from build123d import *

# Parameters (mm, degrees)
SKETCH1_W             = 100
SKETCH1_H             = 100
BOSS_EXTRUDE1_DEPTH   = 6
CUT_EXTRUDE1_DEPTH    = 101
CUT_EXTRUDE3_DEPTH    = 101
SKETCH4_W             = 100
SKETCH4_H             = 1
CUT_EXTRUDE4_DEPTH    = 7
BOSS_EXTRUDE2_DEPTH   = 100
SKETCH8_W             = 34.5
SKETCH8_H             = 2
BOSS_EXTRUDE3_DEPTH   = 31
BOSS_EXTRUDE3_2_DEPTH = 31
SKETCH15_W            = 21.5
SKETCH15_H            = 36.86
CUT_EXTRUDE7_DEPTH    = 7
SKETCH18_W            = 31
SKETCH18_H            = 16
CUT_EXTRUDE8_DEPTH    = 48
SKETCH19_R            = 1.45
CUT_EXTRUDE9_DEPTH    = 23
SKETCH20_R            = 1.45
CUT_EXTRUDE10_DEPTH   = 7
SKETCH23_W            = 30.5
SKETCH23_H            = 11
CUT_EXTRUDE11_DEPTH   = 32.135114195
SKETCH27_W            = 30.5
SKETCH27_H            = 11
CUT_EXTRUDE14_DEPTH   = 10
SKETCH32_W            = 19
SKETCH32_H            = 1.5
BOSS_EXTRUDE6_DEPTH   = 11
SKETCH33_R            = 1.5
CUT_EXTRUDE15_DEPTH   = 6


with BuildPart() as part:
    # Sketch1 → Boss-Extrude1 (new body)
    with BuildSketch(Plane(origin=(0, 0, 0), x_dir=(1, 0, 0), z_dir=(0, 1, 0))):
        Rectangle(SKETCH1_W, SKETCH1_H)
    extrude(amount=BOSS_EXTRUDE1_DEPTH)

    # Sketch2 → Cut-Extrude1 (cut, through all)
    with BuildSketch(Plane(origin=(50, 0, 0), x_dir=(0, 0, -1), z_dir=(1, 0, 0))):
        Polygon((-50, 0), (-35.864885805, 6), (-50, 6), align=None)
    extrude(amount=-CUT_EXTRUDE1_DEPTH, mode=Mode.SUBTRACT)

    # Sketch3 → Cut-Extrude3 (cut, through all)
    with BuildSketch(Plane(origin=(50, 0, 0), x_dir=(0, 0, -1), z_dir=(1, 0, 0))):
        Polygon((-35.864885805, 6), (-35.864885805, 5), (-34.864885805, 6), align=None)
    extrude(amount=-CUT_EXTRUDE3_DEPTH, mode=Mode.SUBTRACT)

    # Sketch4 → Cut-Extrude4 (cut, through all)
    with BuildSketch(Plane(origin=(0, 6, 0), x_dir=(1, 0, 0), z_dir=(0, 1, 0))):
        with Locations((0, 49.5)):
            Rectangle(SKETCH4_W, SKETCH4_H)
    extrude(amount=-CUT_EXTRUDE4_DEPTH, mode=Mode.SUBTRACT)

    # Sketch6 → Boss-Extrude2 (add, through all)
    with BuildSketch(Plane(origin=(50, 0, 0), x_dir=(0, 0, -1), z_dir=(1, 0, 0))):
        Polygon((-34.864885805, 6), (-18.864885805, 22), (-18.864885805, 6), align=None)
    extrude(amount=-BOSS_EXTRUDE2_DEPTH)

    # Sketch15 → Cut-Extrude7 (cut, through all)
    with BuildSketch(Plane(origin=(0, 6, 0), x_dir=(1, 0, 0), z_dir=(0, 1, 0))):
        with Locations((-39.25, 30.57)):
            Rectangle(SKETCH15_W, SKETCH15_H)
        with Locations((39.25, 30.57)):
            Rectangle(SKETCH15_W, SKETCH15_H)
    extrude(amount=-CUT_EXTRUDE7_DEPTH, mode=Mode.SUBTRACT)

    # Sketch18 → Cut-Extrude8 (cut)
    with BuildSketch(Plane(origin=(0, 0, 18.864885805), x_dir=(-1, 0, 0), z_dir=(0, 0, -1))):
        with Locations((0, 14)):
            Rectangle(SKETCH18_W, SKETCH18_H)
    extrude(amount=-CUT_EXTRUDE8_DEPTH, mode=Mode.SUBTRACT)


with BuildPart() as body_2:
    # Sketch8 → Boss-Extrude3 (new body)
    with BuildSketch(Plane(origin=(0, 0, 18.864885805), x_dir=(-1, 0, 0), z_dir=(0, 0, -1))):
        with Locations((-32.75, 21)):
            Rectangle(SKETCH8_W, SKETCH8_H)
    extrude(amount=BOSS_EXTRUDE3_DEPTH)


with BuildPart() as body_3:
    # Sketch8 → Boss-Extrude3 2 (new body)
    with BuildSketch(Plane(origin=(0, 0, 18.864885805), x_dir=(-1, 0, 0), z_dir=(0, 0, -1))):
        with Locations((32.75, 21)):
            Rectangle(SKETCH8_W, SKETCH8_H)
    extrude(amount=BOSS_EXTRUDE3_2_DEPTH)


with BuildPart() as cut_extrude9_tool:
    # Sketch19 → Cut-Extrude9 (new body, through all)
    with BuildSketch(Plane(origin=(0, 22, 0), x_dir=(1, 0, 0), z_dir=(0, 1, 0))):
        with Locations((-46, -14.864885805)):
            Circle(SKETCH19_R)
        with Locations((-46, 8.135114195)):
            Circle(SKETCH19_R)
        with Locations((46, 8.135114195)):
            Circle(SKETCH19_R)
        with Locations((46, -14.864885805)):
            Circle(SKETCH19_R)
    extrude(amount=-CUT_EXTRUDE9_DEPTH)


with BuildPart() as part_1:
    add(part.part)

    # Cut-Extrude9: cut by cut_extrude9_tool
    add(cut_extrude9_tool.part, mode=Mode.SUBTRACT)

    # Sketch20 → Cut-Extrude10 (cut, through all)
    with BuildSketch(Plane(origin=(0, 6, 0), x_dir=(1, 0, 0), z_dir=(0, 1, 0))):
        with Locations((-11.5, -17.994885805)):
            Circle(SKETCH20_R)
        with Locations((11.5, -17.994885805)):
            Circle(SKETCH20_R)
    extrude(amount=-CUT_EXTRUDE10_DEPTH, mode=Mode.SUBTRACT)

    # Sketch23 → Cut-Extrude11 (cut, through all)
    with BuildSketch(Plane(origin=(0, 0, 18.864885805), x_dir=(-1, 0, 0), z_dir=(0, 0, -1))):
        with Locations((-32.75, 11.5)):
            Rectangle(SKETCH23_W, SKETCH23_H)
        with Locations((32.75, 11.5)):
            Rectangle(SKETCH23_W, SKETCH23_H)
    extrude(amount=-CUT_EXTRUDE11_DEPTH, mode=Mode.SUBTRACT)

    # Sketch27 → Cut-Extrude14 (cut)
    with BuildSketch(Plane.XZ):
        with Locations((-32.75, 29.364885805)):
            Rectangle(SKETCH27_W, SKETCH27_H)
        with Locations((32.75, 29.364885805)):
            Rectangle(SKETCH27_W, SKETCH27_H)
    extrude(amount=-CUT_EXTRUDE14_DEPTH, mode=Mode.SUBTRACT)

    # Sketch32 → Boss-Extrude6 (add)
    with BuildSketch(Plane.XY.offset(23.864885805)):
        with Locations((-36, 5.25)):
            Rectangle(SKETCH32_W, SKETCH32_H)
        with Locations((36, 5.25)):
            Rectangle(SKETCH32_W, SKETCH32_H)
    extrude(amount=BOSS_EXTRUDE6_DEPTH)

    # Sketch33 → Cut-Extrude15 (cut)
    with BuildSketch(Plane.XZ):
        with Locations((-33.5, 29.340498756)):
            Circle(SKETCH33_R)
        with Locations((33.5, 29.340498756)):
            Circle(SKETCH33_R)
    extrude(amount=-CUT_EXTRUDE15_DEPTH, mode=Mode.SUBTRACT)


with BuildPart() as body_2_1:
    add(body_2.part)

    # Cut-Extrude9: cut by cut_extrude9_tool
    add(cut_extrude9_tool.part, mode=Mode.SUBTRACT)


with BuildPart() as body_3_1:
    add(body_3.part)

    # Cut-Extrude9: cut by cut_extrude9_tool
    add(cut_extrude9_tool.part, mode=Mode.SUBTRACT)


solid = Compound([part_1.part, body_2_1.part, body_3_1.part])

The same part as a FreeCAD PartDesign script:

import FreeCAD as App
import Part
import Sketcher
from FreeCAD import Vector
Q = App.Units.Quantity


def add_polygon(sketch, points):
    """Adds a closed chain of lines whose ends are joined by coincident constraints."""
    first, n = sketch.GeometryCount, len(points)
    for a, b in zip(points, points[1:] + points[:1]):
        sketch.addGeometry(Part.LineSegment(App.Vector(*a, 0), App.Vector(*b, 0)), False)
    for i in range(n):
        sketch.addConstraint(Sketcher.Constraint("Coincident", first + i, 2, first + (i + 1) % n, 1))

doc = App.newDocument("Part")
params = doc.addObject("Spreadsheet::Sheet", "Params")
for row, (alias, value) in enumerate([
    ("sketch1_width", "100 mm"),
    ("pad1_length", "6 mm"),
    ("sketch2_width", "6 mm"),
    ("sketch3_width", "1 mm"),
    ("sketch4_width", "100 mm"),
    ("sketch4_height", "1 mm"),
    ("sketch5_width", "16 mm"),
    ("pad2_length", "100 mm"),
    ("sketch6_width", "21.5 mm"),
    ("sketch6_height", "36.86 mm"),
    ("sketch7_width", "31 mm"),
    ("sketch7_height", "16 mm"),
    ("pocket5_length", "48 mm"),
    ("sketch8_height", "2 mm"),
    ("sketch8_width", "34.5 mm"),
    ("pad3_length", "31 mm"),
    ("sketch9_height", "2 mm"),
    ("sketch9_width", "34.5 mm"),
    ("pad4_length", "31 mm"),
    ("sketch10_diameter", "2.9 mm"),
    ("pad5_length", "23 mm"),
    ("sketch11_diameter", "2.9 mm"),
    ("sketch12_height", "11 mm"),
    ("sketch12_width", "30.5 mm"),
    ("sketch13_height", "11 mm"),
    ("sketch13_width", "30.5 mm"),
    ("pocket8_length", "10 mm"),
    ("sketch14_width", "19 mm"),
    ("sketch14_height", "1.5 mm"),
    ("pad6_length", "11 mm"),
    ("sketch15_diameter", "3 mm"),
    ("pocket9_length", "6 mm"),
], start=1):
    params.set(f"A{row}", alias)
    params.set(f"B{row}", "=" + value)
    params.setAlias(f"B{row}", alias)

body = doc.addObject("PartDesign::Body", "Body")

# Sketch on XZ plane
sketch1 = body.newObject("Sketcher::SketchObject", "Sketch")
sketch1.AttachmentSupport = (doc.getObject("XZ_Plane"), [""])
sketch1.MapMode = "FlatFace"
add_polygon(sketch1, [(-50, -50), (-50, 50), (50, 50), (50, -50)])  # lines 0-3
sketch1.addConstraint([
    Sketcher.Constraint("Vertical", 0),
    Sketcher.Constraint("Horizontal", 1),
    Sketcher.Constraint("Vertical", 2),
    Sketcher.Constraint("Horizontal", 3),
    Sketcher.Constraint("Symmetric", 0, 2, 2, 2, -1, 1),
    Sketcher.Constraint("Equal", 3, 0),
    Sketcher.Constraint("DistanceX", 1, 1, 1, 2, Q("100 mm")),
])
sketch1.setExpression("Constraints[10]", "Params.sketch1_width")
pad1 = body.newObject("PartDesign::Pad", "Pad")
pad1.Profile = sketch1
pad1.setExpression("Length", "Params.pad1_length")
pad1.Reversed = True

# Sketch on YZ plane
sketch2 = body.newObject("Sketcher::SketchObject", "Sketch001")
sketch2.AttachmentSupport = (doc.getObject("YZ_Plane"), [""])
sketch2.MapMode = "FlatFace"
sketch2.AttachmentOffset = App.Placement(Vector(0, 0, 50), App.Rotation())
add_polygon(sketch2, [(0, 50), (6, 36), (6, 50)])  # lines 0-2
sketch2.addConstraint([
    Sketcher.Constraint("Vertical", 1),
    Sketcher.Constraint("Horizontal", 2),
    Sketcher.Constraint("PointOnObject", 2, 2, -2),
    Sketcher.Constraint("DistanceX", 2, 2, 2, 1, Q("6 mm")),
    Sketcher.Constraint("Angle", 0, Q("-67 deg")),
    Sketcher.Constraint("DistanceY", -1, 1, 1, 2, Q("50 mm")),
])
sketch2.setExpression("Constraints[6]", "Params.sketch2_width")
pocket1 = body.newObject("PartDesign::Pocket", "Pocket")
pocket1.Profile = sketch2
pocket1.Type = "ThroughAll"

# Sketch on YZ plane
sketch3 = body.newObject("Sketcher::SketchObject", "Sketch002")
sketch3.AttachmentSupport = (doc.getObject("YZ_Plane"), [""])
sketch3.MapMode = "FlatFace"
sketch3.AttachmentOffset = App.Placement(Vector(0, 0, 50), App.Rotation())
add_polygon(sketch3, [(6, 35.9), (5, 35.9), (6, 34.9)])  # lines 0-2
sketch3.addConstraint([
    Sketcher.Constraint("Horizontal", 0),
    Sketcher.Constraint("Vertical", 2),
    Sketcher.Constraint("Equal", 0, 2),
    Sketcher.Constraint("DistanceX", 0, 2, 0, 1, Q("1 mm")),
    Sketcher.Constraint("DistanceX", -1, 1, 0, 2, Q("5 mm")),
    Sketcher.Constraint("DistanceY", -1, 1, 0, 2, Q("35.864886 mm")),
])
sketch3.setExpression("Constraints[6]", "Params.sketch3_width")
pocket2 = body.newObject("PartDesign::Pocket", "Pocket001")
pocket2.Profile = sketch3
pocket2.Type = "ThroughAll"

# Sketch on XZ plane
sketch4 = body.newObject("Sketcher::SketchObject", "Sketch003")
sketch4.AttachmentSupport = (doc.getObject("XZ_Plane"), [""])
sketch4.MapMode = "FlatFace"
sketch4.AttachmentOffset = App.Placement(Vector(0, 0, -6), App.Rotation())
add_polygon(sketch4, [(-50, -50), (-50, -49), (50, -49), (50, -50)])  # lines 0-3
sketch4.addConstraint([
    Sketcher.Constraint("Vertical", 0),
    Sketcher.Constraint("Horizontal", 1),
    Sketcher.Constraint("Vertical", 2),
    Sketcher.Constraint("Horizontal", 3),
    Sketcher.Constraint("DistanceX", 1, 1, 1, 2, Q("100 mm")),
    Sketcher.Constraint("DistanceY", 0, 1, 0, 2, Q("1 mm")),
    Sketcher.Constraint("DistanceX", 0, 2, -1, 1, Q("50 mm")),
    Sketcher.Constraint("DistanceY", 0, 2, -1, 1, Q("49 mm")),
])
sketch4.setExpression("Constraints[8]", "Params.sketch4_width")
sketch4.setExpression("Constraints[9]", "Params.sketch4_height")
pocket3 = body.newObject("PartDesign::Pocket", "Pocket002")
pocket3.Profile = sketch4
pocket3.Type = "ThroughAll"
pocket3.Reversed = True

# Sketch on YZ plane
sketch5 = body.newObject("Sketcher::SketchObject", "Sketch004")
sketch5.AttachmentSupport = (doc.getObject("YZ_Plane"), [""])
sketch5.MapMode = "FlatFace"
sketch5.AttachmentOffset = App.Placement(Vector(0, 0, 50), App.Rotation())
add_polygon(sketch5, [(22, 19), (6, 35), (6, 19)])  # lines 0-2
sketch5.addConstraint([
    Sketcher.Constraint("Vertical", 1),
    Sketcher.Constraint("Horizontal", 2),
    Sketcher.Constraint("Equal", 2, 1),
    Sketcher.Constraint("DistanceX", 2, 1, 2, 2, Q("16 mm")),
    Sketcher.Constraint("DistanceX", -1, 1, 0, 2, Q("6 mm")),
    Sketcher.Constraint("DistanceY", -1, 1, 0, 2, Q("34.864886 mm")),
])
sketch5.setExpression("Constraints[6]", "Params.sketch5_width")
pad2 = body.newObject("PartDesign::Pad", "Pad001")
pad2.Profile = sketch5
pad2.setExpression("Length", "Params.pad2_length")
pad2.Reversed = True

# Sketch on XZ plane
sketch6 = body.newObject("Sketcher::SketchObject", "Sketch005")
sketch6.AttachmentSupport = (doc.getObject("XZ_Plane"), [""])
sketch6.MapMode = "FlatFace"
sketch6.AttachmentOffset = App.Placement(Vector(0, 0, -6), App.Rotation())
add_polygon(sketch6, [(-50, -49), (-50, -12), (-28, -12), (-28, -49)])  # lines 0-3
add_polygon(sketch6, [(28, -49), (28, -12), (50, -12), (50, -49)])  # lines 4-7
sketch6.addConstraint([
    Sketcher.Constraint("Vertical", 0),
    Sketcher.Constraint("Horizontal", 1),
    Sketcher.Constraint("Vertical", 2),
    Sketcher.Constraint("Horizontal", 3),
    Sketcher.Constraint("Vertical", 4),
    Sketcher.Constraint("Horizontal", 5),
    Sketcher.Constraint("Vertical", 6),
    Sketcher.Constraint("Horizontal", 7),
    Sketcher.Constraint("Symmetric", 1, 2, 4, 2, -2),
    Sketcher.Constraint("Symmetric", 3, 2, 6, 2, -2),
    Sketcher.Constraint("DistanceX", 1, 1, 1, 2, Q("21.5 mm")),
    Sketcher.Constraint("DistanceX", 0, 2, -1, 1, Q("50 mm")),
    Sketcher.Constraint("DistanceY", 2, 2, -1, 1, Q("49 mm")),
    Sketcher.Constraint("DistanceY", 0, 1, 0, 2, Q("36.86 mm")),
])
sketch6.setExpression("Constraints[18]", "Params.sketch6_width")
sketch6.setExpression("Constraints[21]", "Params.sketch6_height")
pocket4 = body.newObject("PartDesign::Pocket", "Pocket003")
pocket4.Profile = sketch6
pocket4.Type = "ThroughAll"
pocket4.Reversed = True

# Sketch on XY plane
sketch7 = body.newObject("Sketcher::SketchObject", "Sketch006")
sketch7.AttachmentSupport = (doc.getObject("XY_Plane"), [""])
sketch7.MapMode = "FlatFace"
sketch7.AttachmentOffset = App.Placement(Vector(0, 0, 18.864886), App.Rotation())
add_polygon(sketch7, [(16, 22), (16, 6), (-16, 6), (-16, 22)])  # lines 0-3
sketch7.addConstraint([
    Sketcher.Constraint("Vertical", 0),
    Sketcher.Constraint("Horizontal", 1),
    Sketcher.Constraint("Vertical", 2),
    Sketcher.Constraint("Horizontal", 3),
    Sketcher.Constraint("DistanceX", 1, 2, 1, 1, Q("31 mm")),
    Sketcher.Constraint("DistanceY", 0, 2, 0, 1, Q("16 mm")),
    Sketcher.Constraint("DistanceY", -1, 1, 0, 2, Q("6 mm")),
    Sketcher.Constraint("DistanceX", -1, 1, 0, 2, Q("15.5 mm")),
])
sketch7.setExpression("Constraints[8]", "Params.sketch7_width")
sketch7.setExpression("Constraints[9]", "Params.sketch7_height")
pocket5 = body.newObject("PartDesign::Pocket", "Pocket004")
pocket5.Profile = sketch7
pocket5.setExpression("Length", "Params.pocket5_length")
pocket5.Reversed = True
body2 = doc.addObject("PartDesign::Body", "Body001")

# Sketch on XY plane
sketch8 = body2.newObject("Sketcher::SketchObject", "Sketch007")
sketch8.AttachmentSupport = (doc.getObject("XY_Plane001"), [""])
sketch8.MapMode = "FlatFace"
sketch8.AttachmentOffset = App.Placement(Vector(0, 0, 18.864886), App.Rotation())
add_polygon(sketch8, [(50, 22), (50, 20), (15.5, 20), (15.5, 22)])  # lines 0-3
sketch8.addConstraint([
    Sketcher.Constraint("Vertical", 0),
    Sketcher.Constraint("Horizontal", 1),
    Sketcher.Constraint("Vertical", 2),
    Sketcher.Constraint("Horizontal", 3),
    Sketcher.Constraint("DistanceY", 0, 2, 0, 1, Q("2 mm")),
    Sketcher.Constraint("DistanceX", 1, 2, 1, 1, Q("34.5 mm")),
    Sketcher.Constraint("DistanceX", -1, 1, 0, 2, Q("50 mm")),
    Sketcher.Constraint("DistanceY", -1, 1, 0, 2, Q("20 mm")),
])
sketch8.setExpression("Constraints[8]", "Params.sketch8_height")
sketch8.setExpression("Constraints[9]", "Params.sketch8_width")
pad3 = body2.newObject("PartDesign::Pad", "Pad002")
pad3.Profile = sketch8
pad3.setExpression("Length", "Params.pad3_length")
pad3.Reversed = True
body3 = doc.addObject("PartDesign::Body", "Body002")

# Sketch on XY plane
sketch9 = body3.newObject("Sketcher::SketchObject", "Sketch008")
sketch9.AttachmentSupport = (doc.getObject("XY_Plane002"), [""])
sketch9.MapMode = "FlatFace"
sketch9.AttachmentOffset = App.Placement(Vector(0, 0, 18.864886), App.Rotation())
add_polygon(sketch9, [(-15.5, 22), (-15.5, 20), (-50, 20), (-50, 22)])  # lines 0-3
sketch9.addConstraint([
    Sketcher.Constraint("Vertical", 0),
    Sketcher.Constraint("Horizontal", 1),
    Sketcher.Constraint("Vertical", 2),
    Sketcher.Constraint("Horizontal", 3),
    Sketcher.Constraint("DistanceY", 0, 2, 0, 1, Q("2 mm")),
    Sketcher.Constraint("DistanceX", 1, 2, 1, 1, Q("34.5 mm")),
    Sketcher.Constraint("DistanceY", -1, 1, 0, 2, Q("20 mm")),
    Sketcher.Constraint("DistanceX", 1, 2, -1, 1, Q("50 mm")),
])
sketch9.setExpression("Constraints[8]", "Params.sketch9_height")
sketch9.setExpression("Constraints[9]", "Params.sketch9_width")
pad4 = body3.newObject("PartDesign::Pad", "Pad003")
pad4.Profile = sketch9
pad4.setExpression("Length", "Params.pad4_length")
pad4.Reversed = True
body4 = doc.addObject("PartDesign::Body", "Body003")
body4.AllowCompound = True

# Sketch on XZ plane
sketch10 = body4.newObject("Sketcher::SketchObject", "Sketch009")
sketch10.AttachmentSupport = (doc.getObject("XZ_Plane003"), [""])
sketch10.MapMode = "FlatFace"
sketch10.AttachmentOffset = App.Placement(Vector(0, 0, -22), App.Rotation())
sketch10.addGeometry([
    Part.Circle(Vector(-46, 14.9, 0), Vector(0, 0, 1), 1.4),
    Part.Circle(Vector(-46, -8.1, 0), Vector(0, 0, 1), 1.4),
    Part.Circle(Vector(46, -8.1, 0), Vector(0, 0, 1), 1.4),
    Part.Circle(Vector(46, 14.9, 0), Vector(0, 0, 1), 1.4),
], False)
sketch10.addConstraint([
    Sketcher.Constraint("Equal", 0, 1),
    Sketcher.Constraint("Equal", 1, 2),
    Sketcher.Constraint("Equal", 2, 3),
    Sketcher.Constraint("Symmetric", 1, 3, 2, 3, -2),
    Sketcher.Constraint("Symmetric", 0, 3, 3, 3, -2),
    Sketcher.Constraint("Vertical", 0, 3, 1, 3),
    Sketcher.Constraint("Diameter", 0, Q("2.9 mm")),
    Sketcher.Constraint("DistanceX", 0, 3, -1, 1, Q("46 mm")),
    Sketcher.Constraint("DistanceY", 1, 3, 0, 3, Q("23 mm")),
    Sketcher.Constraint("DistanceY", -1, 1, 0, 3, Q("14.864886 mm")),
])
sketch10.setExpression("Constraints[6]", "Params.sketch10_diameter")
pad5 = body4.newObject("PartDesign::Pad", "Pad004")
pad5.Profile = sketch10
pad5.setExpression("Length", "Params.pad5_length")
doc.recompute()

body5 = doc.addObject("PartDesign::Body", "Body004")
body5.BaseFeature = body4
boolean = body.newObject("PartDesign::Boolean", "Boolean")
boolean.Type = "Cut"
boolean.addObjects([body5])
doc.recompute()

# Sketch on XZ plane
sketch11 = body.newObject("Sketcher::SketchObject", "Sketch010")
sketch11.AttachmentSupport = (doc.getObject("XZ_Plane"), [""])
sketch11.MapMode = "FlatFace"
sketch11.AttachmentOffset = App.Placement(Vector(0, 0, -6), App.Rotation())
sketch11.addGeometry([
    Part.Circle(Vector(-11.5, 18, 0), Vector(0, 0, 1), 1.4),
    Part.Circle(Vector(11.5, 18, 0), Vector(0, 0, 1), 1.4),
], False)
sketch11.addConstraint([
    Sketcher.Constraint("Equal", 0, 1),
    Sketcher.Constraint("Symmetric", 0, 3, 1, 3, -2),
    Sketcher.Constraint("Diameter", 0, Q("2.9 mm")),
    Sketcher.Constraint("DistanceX", 0, 3, 1, 3, Q("23 mm")),
    Sketcher.Constraint("DistanceY", -1, 1, 0, 3, Q("17.994886 mm")),
])
sketch11.setExpression("Constraints[2]", "Params.sketch11_diameter")
pocket6 = body.newObject("PartDesign::Pocket", "Pocket005")
pocket6.Profile = sketch11
pocket6.Type = "ThroughAll"
pocket6.Reversed = True

# Sketch on XY plane
sketch12 = body.newObject("Sketcher::SketchObject", "Sketch011")
sketch12.AttachmentSupport = (doc.getObject("XY_Plane"), [""])
sketch12.MapMode = "FlatFace"
sketch12.AttachmentOffset = App.Placement(Vector(0, 0, 18.864886), App.Rotation())
add_polygon(sketch12, [(48, 17), (48, 6), (18, 6), (18, 17)])  # lines 0-3
add_polygon(sketch12, [(-18, 17), (-18, 6), (-48, 6), (-48, 17)])  # lines 4-7
sketch12.addConstraint([
    Sketcher.Constraint("Vertical", 0),
    Sketcher.Constraint("Horizontal", 1),
    Sketcher.Constraint("Vertical", 2),
    Sketcher.Constraint("Horizontal", 3),
    Sketcher.Constraint("Vertical", 4),
    Sketcher.Constraint("Horizontal", 5),
    Sketcher.Constraint("Vertical", 6),
    Sketcher.Constraint("Horizontal", 7),
    Sketcher.Constraint("Symmetric", 1, 2, 4, 2, -2),
    Sketcher.Constraint("Symmetric", 3, 2, 6, 2, -2),
    Sketcher.Constraint("DistanceY", 0, 2, 0, 1, Q("11 mm")),
    Sketcher.Constraint("DistanceX", 1, 2, 1, 1, Q("30.5 mm")),
    Sketcher.Constraint("DistanceX", -1, 1, 0, 2, Q("48 mm")),
    Sketcher.Constraint("DistanceY", -1, 1, 0, 2, Q("6 mm")),
])
sketch12.setExpression("Constraints[18]", "Params.sketch12_height")
sketch12.setExpression("Constraints[19]", "Params.sketch12_width")
pocket7 = body.newObject("PartDesign::Pocket", "Pocket006")
pocket7.Profile = sketch12
pocket7.Type = "ThroughAll"
pocket7.Reversed = True

# Sketch on XZ plane
sketch13 = body.newObject("Sketcher::SketchObject", "Sketch012")
sketch13.AttachmentSupport = (doc.getObject("XZ_Plane"), [""])
sketch13.MapMode = "FlatFace"
add_polygon(sketch13, [(-48, 35), (-48, 24), (-18, 24), (-18, 35)])  # lines 0-3
add_polygon(sketch13, [(18, 35), (18, 24), (48, 24), (48, 35)])  # lines 4-7
sketch13.addConstraint([
    Sketcher.Constraint("Vertical", 0),
    Sketcher.Constraint("Horizontal", 1),
    Sketcher.Constraint("Vertical", 2),
    Sketcher.Constraint("Horizontal", 3),
    Sketcher.Constraint("Vertical", 4),
    Sketcher.Constraint("Horizontal", 5),
    Sketcher.Constraint("Vertical", 6),
    Sketcher.Constraint("Horizontal", 7),
    Sketcher.Constraint("Symmetric", 1, 2, 4, 2, -2),
    Sketcher.Constraint("Symmetric", 3, 2, 6, 2, -2),
    Sketcher.Constraint("DistanceY", 0, 2, 0, 1, Q("11 mm")),
    Sketcher.Constraint("DistanceX", 1, 1, 1, 2, Q("30.5 mm")),
    Sketcher.Constraint("DistanceX", 0, 2, -1, 1, Q("48 mm")),
    Sketcher.Constraint("DistanceY", -1, 1, 0, 2, Q("23.864886 mm")),
])
sketch13.setExpression("Constraints[18]", "Params.sketch13_height")
sketch13.setExpression("Constraints[19]", "Params.sketch13_width")
pocket8 = body.newObject("PartDesign::Pocket", "Pocket007")
pocket8.Profile = sketch13
pocket8.setExpression("Length", "Params.pocket8_length")

# Sketch on XY plane
sketch14 = body.newObject("Sketcher::SketchObject", "Sketch013")
sketch14.AttachmentSupport = (doc.getObject("XY_Plane"), [""])
sketch14.MapMode = "FlatFace"
sketch14.AttachmentOffset = App.Placement(Vector(0, 0, 23.864886), App.Rotation())
add_polygon(sketch14, [(-45.5, 6), (-45.5, 4.5), (-26.5, 4.5), (-26.5, 6)])  # lines 0-3
add_polygon(sketch14, [(26.5, 6), (26.5, 4.5), (45.5, 4.5), (45.5, 6)])  # lines 4-7
sketch14.addConstraint([
    Sketcher.Constraint("Vertical", 0),
    Sketcher.Constraint("Horizontal", 1),
    Sketcher.Constraint("Vertical", 2),
    Sketcher.Constraint("Horizontal", 3),
    Sketcher.Constraint("Vertical", 4),
    Sketcher.Constraint("Horizontal", 5),
    Sketcher.Constraint("Vertical", 6),
    Sketcher.Constraint("Horizontal", 7),
    Sketcher.Constraint("Symmetric", 1, 2, 4, 2, -2),
    Sketcher.Constraint("Symmetric", 3, 2, 6, 2, -2),
    Sketcher.Constraint("DistanceX", 1, 1, 1, 2, Q("19 mm")),
    Sketcher.Constraint("DistanceY", 0, 2, 0, 1, Q("1.5 mm")),
    Sketcher.Constraint("DistanceY", -1, 1, 2, 2, Q("6 mm")),
    Sketcher.Constraint("DistanceX", 1, 2, 4, 2, Q("53 mm")),
])
sketch14.setExpression("Constraints[18]", "Params.sketch14_width")
sketch14.setExpression("Constraints[19]", "Params.sketch14_height")
pad6 = body.newObject("PartDesign::Pad", "Pad005")
pad6.Profile = sketch14
pad6.setExpression("Length", "Params.pad6_length")

# Sketch on XZ plane
sketch15 = body.newObject("Sketcher::SketchObject", "Sketch014")
sketch15.AttachmentSupport = (doc.getObject("XZ_Plane"), [""])
sketch15.MapMode = "FlatFace"
sketch15.addGeometry([
    Part.Circle(Vector(-33.5, 29.3, 0), Vector(0, 0, 1), 1.5),
    Part.Circle(Vector(33.5, 29.3, 0), Vector(0, 0, 1), 1.5),
], False)
sketch15.addConstraint([
    Sketcher.Constraint("Equal", 0, 1),
    Sketcher.Constraint("Symmetric", 0, 3, 1, 3, -2),
    Sketcher.Constraint("Diameter", 0, Q("3 mm")),
    Sketcher.Constraint("DistanceX", 0, 3, 1, 3, Q("67 mm")),
    Sketcher.Constraint("DistanceY", -1, 1, 0, 3, Q("29.340499 mm")),
])
sketch15.setExpression("Constraints[2]", "Params.sketch15_diameter")
pocket9 = body.newObject("PartDesign::Pocket", "Pocket008")
pocket9.Profile = sketch15
pocket9.setExpression("Length", "Params.pocket9_length")
doc.recompute()

body6 = doc.addObject("PartDesign::Body", "Body005")
body6.BaseFeature = body4
boolean2 = body2.newObject("PartDesign::Boolean", "Boolean001")
boolean2.Type = "Cut"
boolean2.addObjects([body6])
doc.recompute()

boolean3 = body3.newObject("PartDesign::Boolean", "Boolean002")
boolean3.Type = "Cut"
boolean3.addObjects([body4])

doc.recompute()
